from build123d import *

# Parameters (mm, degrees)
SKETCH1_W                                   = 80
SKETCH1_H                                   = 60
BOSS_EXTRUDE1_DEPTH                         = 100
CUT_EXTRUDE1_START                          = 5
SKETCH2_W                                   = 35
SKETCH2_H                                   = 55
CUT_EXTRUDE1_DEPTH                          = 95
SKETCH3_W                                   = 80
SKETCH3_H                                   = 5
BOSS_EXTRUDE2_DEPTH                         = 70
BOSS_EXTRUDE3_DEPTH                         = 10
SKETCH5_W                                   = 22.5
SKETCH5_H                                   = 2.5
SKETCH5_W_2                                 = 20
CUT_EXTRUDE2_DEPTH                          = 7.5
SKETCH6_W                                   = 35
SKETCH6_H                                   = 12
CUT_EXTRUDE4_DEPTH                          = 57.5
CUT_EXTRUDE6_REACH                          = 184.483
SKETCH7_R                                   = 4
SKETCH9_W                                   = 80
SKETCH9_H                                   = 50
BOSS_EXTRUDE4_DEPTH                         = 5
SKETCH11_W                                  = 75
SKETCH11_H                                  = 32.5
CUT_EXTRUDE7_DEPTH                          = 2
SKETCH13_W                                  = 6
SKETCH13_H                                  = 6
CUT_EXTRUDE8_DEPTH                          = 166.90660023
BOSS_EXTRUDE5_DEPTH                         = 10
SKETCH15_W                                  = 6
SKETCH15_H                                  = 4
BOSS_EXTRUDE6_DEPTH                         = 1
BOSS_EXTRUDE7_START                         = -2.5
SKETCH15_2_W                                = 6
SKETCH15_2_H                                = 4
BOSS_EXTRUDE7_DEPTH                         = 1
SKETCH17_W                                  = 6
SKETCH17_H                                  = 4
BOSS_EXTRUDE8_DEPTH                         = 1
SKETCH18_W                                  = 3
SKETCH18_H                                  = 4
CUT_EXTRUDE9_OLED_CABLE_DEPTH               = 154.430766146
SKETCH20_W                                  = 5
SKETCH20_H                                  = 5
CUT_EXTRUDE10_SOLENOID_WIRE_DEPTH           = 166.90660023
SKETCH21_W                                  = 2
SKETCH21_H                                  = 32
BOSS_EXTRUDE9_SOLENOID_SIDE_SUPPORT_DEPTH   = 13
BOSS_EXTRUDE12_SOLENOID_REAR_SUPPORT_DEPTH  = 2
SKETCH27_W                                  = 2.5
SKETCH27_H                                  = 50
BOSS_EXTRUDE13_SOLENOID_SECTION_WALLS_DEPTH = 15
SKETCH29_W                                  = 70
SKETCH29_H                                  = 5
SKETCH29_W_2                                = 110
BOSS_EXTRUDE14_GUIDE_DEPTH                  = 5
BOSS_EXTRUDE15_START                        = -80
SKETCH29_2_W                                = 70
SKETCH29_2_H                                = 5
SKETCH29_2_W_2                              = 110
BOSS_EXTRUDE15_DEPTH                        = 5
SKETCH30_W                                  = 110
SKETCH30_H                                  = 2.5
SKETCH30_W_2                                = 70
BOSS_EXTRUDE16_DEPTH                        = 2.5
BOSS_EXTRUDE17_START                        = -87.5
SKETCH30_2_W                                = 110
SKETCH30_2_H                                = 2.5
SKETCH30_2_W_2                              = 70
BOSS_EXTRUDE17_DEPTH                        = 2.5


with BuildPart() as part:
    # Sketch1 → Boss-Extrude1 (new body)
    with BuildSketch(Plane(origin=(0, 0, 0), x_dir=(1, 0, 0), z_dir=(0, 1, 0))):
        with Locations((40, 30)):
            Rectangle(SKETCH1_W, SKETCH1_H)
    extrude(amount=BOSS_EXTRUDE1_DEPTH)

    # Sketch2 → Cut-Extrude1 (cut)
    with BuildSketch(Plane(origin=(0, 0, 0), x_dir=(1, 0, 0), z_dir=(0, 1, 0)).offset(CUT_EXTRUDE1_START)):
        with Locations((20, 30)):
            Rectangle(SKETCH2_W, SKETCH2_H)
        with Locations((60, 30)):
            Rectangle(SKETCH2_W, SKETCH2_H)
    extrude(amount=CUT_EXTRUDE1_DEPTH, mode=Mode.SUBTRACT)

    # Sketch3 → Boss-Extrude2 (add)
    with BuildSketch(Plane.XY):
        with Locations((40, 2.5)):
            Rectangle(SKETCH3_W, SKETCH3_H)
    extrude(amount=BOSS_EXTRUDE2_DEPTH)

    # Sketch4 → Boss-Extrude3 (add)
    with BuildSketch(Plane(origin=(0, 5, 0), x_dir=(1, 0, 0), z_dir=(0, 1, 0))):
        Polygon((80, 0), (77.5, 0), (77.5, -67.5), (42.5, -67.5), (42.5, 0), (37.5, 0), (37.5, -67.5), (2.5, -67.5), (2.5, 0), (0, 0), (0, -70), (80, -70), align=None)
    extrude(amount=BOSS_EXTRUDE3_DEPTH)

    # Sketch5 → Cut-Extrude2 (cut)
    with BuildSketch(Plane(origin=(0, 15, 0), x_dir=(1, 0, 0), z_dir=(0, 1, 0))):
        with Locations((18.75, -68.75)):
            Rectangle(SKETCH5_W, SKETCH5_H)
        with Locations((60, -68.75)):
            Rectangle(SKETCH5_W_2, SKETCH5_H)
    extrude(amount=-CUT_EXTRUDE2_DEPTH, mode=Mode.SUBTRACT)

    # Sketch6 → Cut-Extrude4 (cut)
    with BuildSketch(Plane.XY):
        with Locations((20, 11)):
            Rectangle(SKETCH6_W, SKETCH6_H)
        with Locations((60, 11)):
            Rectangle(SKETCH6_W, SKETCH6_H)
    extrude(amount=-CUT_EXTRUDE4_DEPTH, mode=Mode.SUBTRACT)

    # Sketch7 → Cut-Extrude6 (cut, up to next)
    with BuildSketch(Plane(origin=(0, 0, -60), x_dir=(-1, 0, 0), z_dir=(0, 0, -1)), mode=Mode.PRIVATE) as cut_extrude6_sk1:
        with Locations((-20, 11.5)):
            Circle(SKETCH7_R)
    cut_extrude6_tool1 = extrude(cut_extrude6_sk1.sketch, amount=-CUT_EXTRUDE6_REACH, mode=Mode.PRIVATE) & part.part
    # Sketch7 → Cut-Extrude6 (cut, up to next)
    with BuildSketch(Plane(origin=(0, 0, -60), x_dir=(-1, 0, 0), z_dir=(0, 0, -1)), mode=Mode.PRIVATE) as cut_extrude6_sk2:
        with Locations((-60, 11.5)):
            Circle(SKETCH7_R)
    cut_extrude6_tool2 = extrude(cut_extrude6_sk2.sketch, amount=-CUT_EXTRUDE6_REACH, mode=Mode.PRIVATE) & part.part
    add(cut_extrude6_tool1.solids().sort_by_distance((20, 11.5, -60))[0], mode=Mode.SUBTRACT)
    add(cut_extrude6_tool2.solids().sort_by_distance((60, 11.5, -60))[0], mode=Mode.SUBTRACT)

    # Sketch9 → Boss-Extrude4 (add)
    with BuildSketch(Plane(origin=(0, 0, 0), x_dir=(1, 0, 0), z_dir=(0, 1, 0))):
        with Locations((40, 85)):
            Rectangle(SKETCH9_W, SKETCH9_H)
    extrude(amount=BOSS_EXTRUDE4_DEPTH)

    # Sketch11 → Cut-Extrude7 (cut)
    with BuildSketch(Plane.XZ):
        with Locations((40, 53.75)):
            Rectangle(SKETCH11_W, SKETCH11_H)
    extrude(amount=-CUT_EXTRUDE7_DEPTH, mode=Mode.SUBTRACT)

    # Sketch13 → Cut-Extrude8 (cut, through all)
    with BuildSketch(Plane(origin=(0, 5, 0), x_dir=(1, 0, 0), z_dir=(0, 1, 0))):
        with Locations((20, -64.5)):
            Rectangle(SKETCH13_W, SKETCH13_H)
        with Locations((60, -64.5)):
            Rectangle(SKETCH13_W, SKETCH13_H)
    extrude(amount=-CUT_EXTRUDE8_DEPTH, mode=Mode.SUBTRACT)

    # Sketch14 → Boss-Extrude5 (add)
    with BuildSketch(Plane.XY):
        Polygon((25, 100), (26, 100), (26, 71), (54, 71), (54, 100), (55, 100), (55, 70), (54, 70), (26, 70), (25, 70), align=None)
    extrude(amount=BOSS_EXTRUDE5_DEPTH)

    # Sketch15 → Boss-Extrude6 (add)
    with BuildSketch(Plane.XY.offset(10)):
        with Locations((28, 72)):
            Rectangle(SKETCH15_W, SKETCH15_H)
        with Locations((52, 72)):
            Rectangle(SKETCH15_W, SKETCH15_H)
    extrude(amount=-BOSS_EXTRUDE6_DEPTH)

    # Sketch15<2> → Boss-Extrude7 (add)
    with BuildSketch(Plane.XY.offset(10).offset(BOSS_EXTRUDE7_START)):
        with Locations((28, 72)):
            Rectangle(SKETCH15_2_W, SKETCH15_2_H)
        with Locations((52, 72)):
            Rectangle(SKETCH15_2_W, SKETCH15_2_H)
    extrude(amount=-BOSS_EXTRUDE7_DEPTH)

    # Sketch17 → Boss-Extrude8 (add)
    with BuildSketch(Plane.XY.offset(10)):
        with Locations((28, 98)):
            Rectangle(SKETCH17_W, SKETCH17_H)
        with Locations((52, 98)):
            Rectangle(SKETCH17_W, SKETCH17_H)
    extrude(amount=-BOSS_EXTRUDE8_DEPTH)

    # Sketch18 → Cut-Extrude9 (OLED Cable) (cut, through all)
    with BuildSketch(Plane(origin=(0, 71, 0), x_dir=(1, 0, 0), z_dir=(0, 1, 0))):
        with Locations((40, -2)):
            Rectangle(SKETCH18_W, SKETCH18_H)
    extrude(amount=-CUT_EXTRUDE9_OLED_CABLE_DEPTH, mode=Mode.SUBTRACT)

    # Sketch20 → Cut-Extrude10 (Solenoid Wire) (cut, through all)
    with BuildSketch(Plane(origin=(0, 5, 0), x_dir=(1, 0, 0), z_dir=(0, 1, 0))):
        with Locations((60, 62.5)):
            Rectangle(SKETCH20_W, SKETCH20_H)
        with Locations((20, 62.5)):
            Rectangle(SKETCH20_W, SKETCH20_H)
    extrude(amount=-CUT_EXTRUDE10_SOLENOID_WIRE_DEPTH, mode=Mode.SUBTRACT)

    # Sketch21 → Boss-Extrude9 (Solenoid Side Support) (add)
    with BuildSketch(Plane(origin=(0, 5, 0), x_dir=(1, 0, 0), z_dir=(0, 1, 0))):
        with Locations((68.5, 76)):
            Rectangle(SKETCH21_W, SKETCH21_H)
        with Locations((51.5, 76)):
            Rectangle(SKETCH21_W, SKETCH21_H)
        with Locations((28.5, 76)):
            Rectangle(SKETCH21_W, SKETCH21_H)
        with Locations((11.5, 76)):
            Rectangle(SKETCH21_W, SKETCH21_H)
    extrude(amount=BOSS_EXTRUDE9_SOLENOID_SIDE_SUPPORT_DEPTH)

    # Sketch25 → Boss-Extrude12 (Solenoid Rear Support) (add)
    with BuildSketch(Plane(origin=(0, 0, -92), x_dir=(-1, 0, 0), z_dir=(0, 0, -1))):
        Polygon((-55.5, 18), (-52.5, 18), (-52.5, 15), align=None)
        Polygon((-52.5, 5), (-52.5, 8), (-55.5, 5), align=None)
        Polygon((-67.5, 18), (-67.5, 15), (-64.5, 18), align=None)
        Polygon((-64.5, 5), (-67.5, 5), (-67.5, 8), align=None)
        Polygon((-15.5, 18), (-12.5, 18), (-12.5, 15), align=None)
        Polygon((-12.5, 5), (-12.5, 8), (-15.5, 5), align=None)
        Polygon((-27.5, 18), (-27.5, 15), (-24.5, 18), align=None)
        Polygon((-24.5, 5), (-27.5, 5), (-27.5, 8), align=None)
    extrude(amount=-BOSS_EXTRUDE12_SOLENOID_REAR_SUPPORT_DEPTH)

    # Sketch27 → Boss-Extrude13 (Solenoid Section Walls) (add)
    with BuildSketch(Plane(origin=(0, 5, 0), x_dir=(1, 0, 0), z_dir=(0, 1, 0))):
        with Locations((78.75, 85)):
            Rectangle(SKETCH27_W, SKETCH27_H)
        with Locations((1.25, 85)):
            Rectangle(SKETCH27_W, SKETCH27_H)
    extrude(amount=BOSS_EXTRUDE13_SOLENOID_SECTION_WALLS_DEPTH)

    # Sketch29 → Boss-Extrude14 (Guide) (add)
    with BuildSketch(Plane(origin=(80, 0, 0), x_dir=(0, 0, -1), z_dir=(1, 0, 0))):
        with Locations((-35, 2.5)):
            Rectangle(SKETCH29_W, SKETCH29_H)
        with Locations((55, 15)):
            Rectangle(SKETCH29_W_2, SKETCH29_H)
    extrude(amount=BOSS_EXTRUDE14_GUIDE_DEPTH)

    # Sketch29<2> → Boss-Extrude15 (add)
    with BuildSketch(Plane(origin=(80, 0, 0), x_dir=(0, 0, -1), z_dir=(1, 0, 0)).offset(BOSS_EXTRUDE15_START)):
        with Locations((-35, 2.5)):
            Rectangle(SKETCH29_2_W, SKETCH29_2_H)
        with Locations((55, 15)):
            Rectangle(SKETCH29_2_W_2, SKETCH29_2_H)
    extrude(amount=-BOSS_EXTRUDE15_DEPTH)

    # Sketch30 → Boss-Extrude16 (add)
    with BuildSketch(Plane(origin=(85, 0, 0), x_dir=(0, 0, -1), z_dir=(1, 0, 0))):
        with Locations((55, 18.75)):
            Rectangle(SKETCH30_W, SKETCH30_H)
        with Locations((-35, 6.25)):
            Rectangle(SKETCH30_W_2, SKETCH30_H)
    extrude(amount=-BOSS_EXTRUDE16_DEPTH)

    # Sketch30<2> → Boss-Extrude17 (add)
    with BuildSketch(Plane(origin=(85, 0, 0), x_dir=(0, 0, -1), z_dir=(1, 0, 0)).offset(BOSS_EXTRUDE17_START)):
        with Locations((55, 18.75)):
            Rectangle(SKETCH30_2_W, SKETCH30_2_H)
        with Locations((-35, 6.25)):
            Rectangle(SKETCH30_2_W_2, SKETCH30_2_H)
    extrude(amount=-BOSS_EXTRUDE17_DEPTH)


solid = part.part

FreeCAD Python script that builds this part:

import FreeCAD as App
import Part
import Sketcher

V = App.Vector


def add_polygon(sketch, points):
    """Adds a closed chain of lines whose ends are joined by coincident constraints."""
    first, n = sketch.GeometryCount, len(points)
    for a, b in zip(points, points[1:] + points[:1]):
        sketch.addGeometry(Part.LineSegment(App.Vector(*a, 0), App.Vector(*b, 0)), False)
    for i in range(n):
        sketch.addConstraint(Sketcher.Constraint("Coincident", first + i, 2, first + (i + 1) % n, 1))

doc = App.newDocument("Part")
body = doc.addObject("PartDesign::Body", "Body")

sketch1 = body.newObject("Sketcher::SketchObject", "Sketch")
sketch1.AttachmentSupport = (doc.getObject("XZ_Plane"), [""])
sketch1.MapMode = "FlatFace"
add_polygon(sketch1, [(0, -60), (0, 0), (80, 0), (80, -60)])
sketch1.addConstraint([
    Sketcher.Constraint("Vertical", 0),
    Sketcher.Constraint("Horizontal", 1),
    Sketcher.Constraint("Vertical", 2),
    Sketcher.Constraint("Horizontal", 3),
    Sketcher.Constraint("Coincident", 0, 2, -1, 1),
    Sketcher.Constraint("DistanceX", 1, 1, 1, 2, 80.0),
    Sketcher.Constraint("DistanceY", 0, 1, 0, 2, 60.0),
])
pad1 = body.newObject("PartDesign::Pad", "Pad")
pad1.Profile = sketch1
pad1.Length = 100
pad1.Reversed = True

sketch2 = body.newObject("Sketcher::SketchObject", "Sketch001")
sketch2.AttachmentSupport = (doc.getObject("XZ_Plane"), [""])
sketch2.MapMode = "FlatFace"
sketch2.AttachmentOffset = App.Placement(V(0, 0, -5), App.Rotation())
add_polygon(sketch2, [(2, -58), (2, -2), (38, -2), (38, -58)])
add_polygon(sketch2, [(42, -58), (42, -2), (78, -2), (78, -58)])
sketch2.addConstraint([
    Sketcher.Constraint("Vertical", 0),
    Sketcher.Constraint("Horizontal", 1),
    Sketcher.Constraint("Vertical", 2),
    Sketcher.Constraint("Horizontal", 3),
    Sketcher.Constraint("Vertical", 4),
    Sketcher.Constraint("Horizontal", 5),
    Sketcher.Constraint("Vertical", 6),
    Sketcher.Constraint("Horizontal", 7),
    Sketcher.Constraint("Horizontal", 1, 2, 4, 2),
    Sketcher.Constraint("Horizontal", 3, 2, 6, 2),
    Sketcher.Constraint("Equal", 3, 5),
    Sketcher.Constraint("DistanceX", 1, 1, 1, 2, 35.0),
    Sketcher.Constraint("DistanceY", 0, 1, 0, 2, 55.0),
    Sketcher.Constraint("DistanceX", 1, 2, 4, 2, 5.0),
    Sketcher.Constraint("DistanceX", -1, 1, 0, 2, 2.5),
    Sketcher.Constraint("DistanceY", 0, 2, -1, 1, 2.5),
])
pocket1 = body.newObject("PartDesign::Pocket", "Pocket")
pocket1.Profile = sketch2
pocket1.Length = 95

sketch3 = body.newObject("Sketcher::SketchObject", "Sketch002")
sketch3.AttachmentSupport = (doc.getObject("XY_Plane"), [""])
sketch3.MapMode = "FlatFace"
add_polygon(sketch3, [(0, 5), (0, 0), (80, 0), (80, 5)])
sketch3.addConstraint([
    Sketcher.Constraint("Vertical", 0),
    Sketcher.Constraint("Horizontal", 1),
    Sketcher.Constraint("Vertical", 2),
    Sketcher.Constraint("Horizontal", 3),
    Sketcher.Constraint("Coincident", 0, 2, -1, 1),
    Sketcher.Constraint("DistanceX", 1, 1, 1, 2, 80.0),
    Sketcher.Constraint("DistanceY", 0, 2, 0, 1, 5.0),
])
pad2 = body.newObject("PartDesign::Pad", "Pad001")
pad2.Profile = sketch3
pad2.Length = 70

sketch4 = body.newObject("Sketcher::SketchObject", "Sketch003")
sketch4.AttachmentSupport = (doc.getObject("XZ_Plane"), [""])
sketch4.MapMode = "FlatFace"
sketch4.AttachmentOffset = App.Placement(V(0, 0, -5), App.Rotation())
add_polygon(sketch4, [(80, 0), (77.5, 0), (77.5, 67.5), (42.5, 67.5), (42.5, 0), (37.5, 0), (37.5, 67.5), (2.5, 67.5), (2.5, 0), (0, 0), (0, 70), (80, 70)])
sketch4.addConstraint([
    Sketcher.Constraint("Horizontal", 0),
    Sketcher.Constraint("Vertical", 1),
    Sketcher.Constraint("Horizontal", 2),
    Sketcher.Constraint("Vertical", 3),
    Sketcher.Constraint("Horizontal", 4),
    Sketcher.Constraint("Vertical", 5),
    Sketcher.Constraint("Horizontal", 6),
    Sketcher.Constraint("Vertical", 7),
    Sketcher.Constraint("Horizontal", 8),
    Sketcher.Constraint("Vertical", 9),
    Sketcher.Constraint("Horizontal", 10),
    Sketcher.Constraint("Vertical", 11),
    Sketcher.Constraint("Coincident", 8, 2, -1, 1),
    Sketcher.Constraint("PointOnObject", 0, 2, -1),
    Sketcher.Constraint("PointOnObject", 3, 2, -1),
    Sketcher.Constraint("Horizontal", 2, 2, 5, 2),
    Sketcher.Constraint("Equal", 2, 6),
    Sketcher.Constraint("Equal", 0, 8),
    Sketcher.Constraint("DistanceX", 2, 2, 2, 1, 35.0),
    Sketcher.Constraint("DistanceX", 4, 2, 4, 1, 5.0),
    Sketcher.Constraint("DistanceX", 10, 1, 10, 2, 80.0),
    Sketcher.Constraint("DistanceY", 9, 1, 9, 2, 70.0),
    Sketcher.Constraint("DistanceY", 1, 1, 1, 2, 67.5),
])
pad3 = body.newObject("PartDesign::Pad", "Pad002")
pad3.Profile = sketch4
pad3.Length = 10
pad3.Reversed = True

sketch5 = body.newObject("Sketcher::SketchObject", "Sketch004")
sketch5.AttachmentSupport = (doc.getObject("XZ_Plane"), [""])
sketch5.MapMode = "FlatFace"
sketch5.AttachmentOffset = App.Placement(V(0, 0, -15), App.Rotation())
add_polygon(sketch5, [(7.5, 67.5), (7.5, 70), (30, 70), (30, 67.5)])
add_polygon(sketch5, [(50, 67.5), (50, 70), (70, 70), (70, 67.5)])
sketch5.addConstraint([
    Sketcher.Constraint("Vertical", 0),
    Sketcher.Constraint("Horizontal", 1),
    Sketcher.Constraint("Vertical", 2),
    Sketcher.Constraint("Horizontal", 3),
    Sketcher.Constraint("Vertical", 4),
    Sketcher.Constraint("Horizontal", 5),
    Sketcher.Constraint("Vertical", 6),
    Sketcher.Constraint("Horizontal", 7),
    Sketcher.Constraint("Horizontal", 1, 2, 4, 2),
    Sketcher.Constraint("Horizontal", 3, 2, 6, 2),
    Sketcher.Constraint("DistanceX", 5, 1, 5, 2, 20.0),
    Sketcher.Constraint("DistanceX", 1, 1, 1, 2, 22.5),
    Sketcher.Constraint("DistanceY", 0, 1, 0, 2, 2.5),
    Sketcher.Constraint("DistanceY", -1, 1, 0, 2, 70.0),
    Sketcher.Constraint("DistanceX", -1, 1, 1, 2, 30.0),
    Sketcher.Constraint("DistanceX", -1, 1, 4, 2, 50.0),
])
pocket2 = body.newObject("PartDesign::Pocket", "Pocket001")
pocket2.Profile = sketch5
pocket2.Length = 7.5
pocket2.Reversed = True

sketch6 = body.newObject("Sketcher::SketchObject", "Sketch005")
sketch6.AttachmentSupport = (doc.getObject("XY_Plane"), [""])
sketch6.MapMode = "FlatFace"
add_polygon(sketch6, [(2, 17), (2, 5), (38, 5), (38, 17)])
add_polygon(sketch6, [(42, 17), (42, 5), (78, 5), (78, 17)])
sketch6.addConstraint([
    Sketcher.Constraint("Vertical", 0),
    Sketcher.Constraint("Horizontal", 1),
    Sketcher.Constraint("Vertical", 2),
    Sketcher.Constraint("Horizontal", 3),
    Sketcher.Constraint("Vertical", 4),
    Sketcher.Constraint("Horizontal", 5),
    Sketcher.Constraint("Vertical", 6),
    Sketcher.Constraint("Horizontal", 7),
    Sketcher.Constraint("Horizontal", 1, 2, 4, 2),
    Sketcher.Constraint("Horizontal", 3, 2, 6, 2),
    Sketcher.Constraint("Equal", 3, 5),
    Sketcher.Constraint("DistanceX", 1, 1, 1, 2, 35.0),
    Sketcher.Constraint("DistanceY", 0, 2, 0, 1, 12.0),
    Sketcher.Constraint("DistanceY", -1, 1, 0, 2, 5.0),
    Sketcher.Constraint("DistanceX", 1, 2, 4, 2, 5.0),
    Sketcher.Constraint("DistanceX", -1, 1, 0, 2, 2.5),
])
pocket3 = body.newObject("PartDesign::Pocket", "Pocket002")
pocket3.Profile = sketch6
pocket3.Length = 57.5

sketch7 = body.newObject("Sketcher::SketchObject", "Sketch006")
sketch7.AttachmentSupport = (doc.getObject("XY_Plane"), [""])
sketch7.MapMode = "FlatFace"
sketch7.AttachmentOffset = App.Placement(V(0, 0, -60), App.Rotation())
sketch7.addGeometry(Part.Circle(V(20, 11.5, 0), V(0, 0, 1), 4), False)
sketch7.addConstraint([
    Sketcher.Constraint("Diameter", 0, 8.0),
    Sketcher.Constraint("DistanceX", -1, 1, 0, 3, 20.0),
    Sketcher.Constraint("DistanceY", -1, 1, 0, 3, 11.5),
])
pocket4 = body.newObject("PartDesign::Pocket", "Pocket003")
pocket4.Profile = sketch7
pocket4.Type = "UpToFirst"
pocket4.Reversed = True

sketch8 = body.newObject("Sketcher::SketchObject", "Sketch007")
sketch8.AttachmentSupport = (doc.getObject("XY_Plane"), [""])
sketch8.MapMode = "FlatFace"
sketch8.AttachmentOffset = App.Placement(V(0, 0, -60), App.Rotation())
sketch8.addGeometry(Part.Circle(V(60, 11.5, 0), V(0, 0, 1), 4), False)
sketch8.addConstraint([
    Sketcher.Constraint("Diameter", 0, 8.0),
    Sketcher.Constraint("DistanceX", -1, 1, 0, 3, 60.0),
    Sketcher.Constraint("DistanceY", -1, 1, 0, 3, 11.5),
])
pocket5 = body.newObject("PartDesign::Pocket", "Pocket004")
pocket5.Profile = sketch8
pocket5.Type = "UpToFirst"
pocket5.Reversed = True

sketch9 = body.newObject("Sketcher::SketchObject", "Sketch008")
sketch9.AttachmentSupport = (doc.getObject("XZ_Plane"), [""])
sketch9.MapMode = "FlatFace"
add_polygon(sketch9, [(0, -110), (0, -60), (80, -60), (80, -110)])
sketch9.addConstraint([
    Sketcher.Constraint("Vertical", 0),
    Sketcher.Constraint("Horizontal", 1),
    Sketcher.Constraint("Vertical", 2),
    Sketcher.Constraint("Horizontal", 3),
    Sketcher.Constraint("PointOnObject", 0, 2, -2),
    Sketcher.Constraint("DistanceX", 1, 1, 1, 2, 80.0),
    Sketcher.Constraint("DistanceY", 0, 1, 0, 2, 50.0),
    Sketcher.Constraint("DistanceY", 0, 2, -1, 1, 60.0),
])
pad4 = body.newObject("PartDesign::Pad", "Pad003")
pad4.Profile = sketch9
pad4.Length = 5
pad4.Reversed = True

sketch10 = body.newObject("Sketcher::SketchObject", "Sketch009")
sketch10.AttachmentSupport = (doc.getObject("XZ_Plane"), [""])
sketch10.MapMode = "FlatFace"
add_polygon(sketch10, [(2, 70), (2, 38), (78, 38), (78, 70)])
sketch10.addConstraint([
    Sketcher.Constraint("Vertical", 0),
    Sketcher.Constraint("Horizontal", 1),
    Sketcher.Constraint("Vertical", 2),
    Sketcher.Constraint("Horizontal", 3),
    Sketcher.Constraint("DistanceX", 1, 1, 1, 2, 75.0),
    Sketcher.Constraint("DistanceY", 0, 2, 0, 1, 32.5),
    Sketcher.Constraint("DistanceY", -1, 1, 2, 2, 70.0),
    Sketcher.Constraint("DistanceX", -1, 1, 0, 2, 2.5),
])
pocket6 = body.newObject("PartDesign::Pocket", "Pocket005")
pocket6.Profile = sketch10
pocket6.Length = 2

sketch11 = body.newObject("Sketcher::SketchObject", "Sketch010")
sketch11.AttachmentSupport = (doc.getObject("XZ_Plane"), [""])
sketch11.MapMode = "FlatFace"
sketch11.AttachmentOffset = App.Placement(V(0, 0, -5), App.Rotation())
add_polygon(sketch11, [(17, 62), (17, 68), (23, 68), (23, 62)])
add_polygon(sketch11, [(57, 62), (57, 68), (63, 68), (63, 62)])
sketch11.addConstraint([
    Sketcher.Constraint("Vertical", 0),
    Sketcher.Constraint("Horizontal", 1),
    Sketcher.Constraint("Vertical", 2),
    Sketcher.Constraint("Horizontal", 3),
    Sketcher.Constraint("Vertical", 4),
    Sketcher.Constraint("Horizontal", 5),
    Sketcher.Constraint("Vertical", 6),
    Sketcher.Constraint("Horizontal", 7),
    Sketcher.Constraint("Horizontal", 1, 2, 4, 2),
    Sketcher.Constraint("Horizontal", 3, 2, 6, 2),
    Sketcher.Constraint("Equal", 3, 5),
    Sketcher.Constraint("Equal", 7, 0),
    Sketcher.Constraint("DistanceX", 1, 1, 1, 2, 6.0),
    Sketcher.Constraint("DistanceX", -1, 1, 0, 2, 17.0),
    Sketcher.Constraint("DistanceX", -1, 1, 4, 2, 57.0),
    Sketcher.Constraint("DistanceY", -1, 1, 0, 2, 67.5),
])
pocket7 = body.newObject("PartDesign::Pocket", "Pocket006")
pocket7.Profile = sketch11
pocket7.Type = "ThroughAll"
pocket7.Reversed = True

sketch12 = body.newObject("Sketcher::SketchObject", "Sketch011")
sketch12.AttachmentSupport = (doc.getObject("XY_Plane"), [""])
sketch12.MapMode = "FlatFace"
add_polygon(sketch12, [(26, 100), (25, 100), (25, 70), (55, 70), (55, 100), (54, 100), (54, 71), (26, 71)])
sketch12.addConstraint([
    Sketcher.Constraint("Horizontal", 0),
    Sketcher.Constraint("Vertical", 1),
    Sketcher.Constraint("Horizontal", 2),
    Sketcher.Constraint("Vertical", 3),
    Sketcher.Constraint("Horizontal", 4),
    Sketcher.Constraint("Vertical", 5),
    Sketcher.Constraint("Horizontal", 6),
    Sketcher.Constraint("Vertical", 7),
    Sketcher.Constraint("Horizontal", 0, 2, 3, 2),
    Sketcher.Constraint("Equal", 0, 4),
    Sketcher.Constraint("Equal", 2, 1),
    Sketcher.Constraint("DistanceX", 0, 2, 0, 1, 1.0),
    Sketcher.Constraint("DistanceX", 2, 1, 2, 2, 30.0),
    Sketcher.Constraint("DistanceY", 5, 2, 5, 1, 29.0),
    Sketcher.Constraint("DistanceX", -1, 1, 0, 2, 25.0),
    Sketcher.Constraint("DistanceY", -1, 1, 0, 2, 100.0),
])
pad5 = body.newObject("PartDesign::Pad", "Pad004")
pad5.Profile = sketch12
pad5.Length = 10

sketch13 = body.newObject("Sketcher::SketchObject", "Sketch012")
sketch13.AttachmentSupport = (doc.getObject("XY_Plane"), [""])
sketch13.MapMode = "FlatFace"
sketch13.AttachmentOffset = App.Placement(V(0, 0, 10), App.Rotation())
add_polygon(sketch13, [(25, 74), (25, 70), (31, 70), (31, 74)])
add_polygon(sketch13, [(49, 74), (49, 70), (55, 70), (55, 74)])
sketch13.addConstraint([
    Sketcher.Constraint("Vertical", 0),
    Sketcher.Constraint("Horizontal", 1),
    Sketcher.Constraint("Vertical", 2),
    Sketcher.Constraint("Horizontal", 3),
    Sketcher.Constraint("Vertical", 4),
    Sketcher.Constraint("Horizontal", 5),
    Sketcher.Constraint("Vertical", 6),
    Sketcher.Constraint("Horizontal", 7),
    Sketcher.Constraint("Horizontal", 1, 2, 4, 2),
    Sketcher.Constraint("Horizontal", 3, 2, 6, 2),
    Sketcher.Constraint("Equal", 3, 5),
    Sketcher.Constraint("DistanceX", 1, 1, 1, 2, 6.0),
    Sketcher.Constraint("DistanceY", 0, 2, 0, 1, 4.0),
    Sketcher.Constraint("DistanceX", -1, 1, 0, 2, 25.0),
    Sketcher.Constraint("DistanceY", -1, 1, 0, 2, 70.0),
    Sketcher.Constraint("DistanceX", -1, 1, 4, 2, 49.0),
])
pad6 = body.newObject("PartDesign::Pad", "Pad005")
pad6.Profile = sketch13
pad6.Length = 1
pad6.Reversed = True

sketch14 = body.newObject("Sketcher::SketchObject", "Sketch013")
sketch14.AttachmentSupport = (doc.getObject("XY_Plane"), [""])
sketch14.MapMode = "FlatFace"
sketch14.AttachmentOffset = App.Placement(V(0, 0, 7.5), App.Rotation())
add_polygon(sketch14, [(25, 74), (25, 70), (31, 70), (31, 74)])
add_polygon(sketch14, [(49, 74), (49, 70), (55, 70), (55, 74)])
sketch14.addConstraint([
    Sketcher.Constraint("Vertical", 0),
    Sketcher.Constraint("Horizontal", 1),
    Sketcher.Constraint("Vertical", 2),
    Sketcher.Constraint("Horizontal", 3),
    Sketcher.Constraint("Vertical", 4),
    Sketcher.Constraint("Horizontal", 5),
    Sketcher.Constraint("Vertical", 6),
    Sketcher.Constraint("Horizontal", 7),
    Sketcher.Constraint("Horizontal", 1, 2, 4, 2),
    Sketcher.Constraint("Horizontal", 3, 2, 6, 2),
    Sketcher.Constraint("Equal", 3, 5),
    Sketcher.Constraint("DistanceX", 1, 1, 1, 2, 6.0),
    Sketcher.Constraint("DistanceY", 0, 2, 0, 1, 4.0),
    Sketcher.Constraint("DistanceX", -1, 1, 0, 2, 25.0),
    Sketcher.Constraint("DistanceY", -1, 1, 0, 2, 70.0),
    Sketcher.Constraint("DistanceX", -1, 1, 4, 2, 49.0),
])
pad7 = body.newObject("PartDesign::Pad", "Pad006")
pad7.Profile = sketch14
pad7.Length = 1
pad7.Reversed = True

sketch15 = body.newObject("Sketcher::SketchObject", "Sketch014")
sketch15.AttachmentSupport = (doc.getObject("XY_Plane"), [""])
sketch15.MapMode = "FlatFace"
sketch15.AttachmentOffset = App.Placement(V(0, 0, 10), App.Rotation())
add_polygon(sketch15, [(25, 100), (25, 96), (31, 96), (31, 100)])
add_polygon(sketch15, [(49, 100), (49, 96), (55, 96), (55, 100)])
sketch15.addConstraint([
    Sketcher.Constraint("Vertical", 0),
    Sketcher.Constraint("Horizontal", 1),
    Sketcher.Constraint("Vertical", 2),
    Sketcher.Constraint("Horizontal", 3),
    Sketcher.Constraint("Vertical", 4),
    Sketcher.Constraint("Horizontal", 5),
    Sketcher.Constraint("Vertical", 6),
    Sketcher.Constraint("Horizontal", 7),
    Sketcher.Constraint("Horizontal", 1, 2, 4, 2),
    Sketcher.Constraint("Horizontal", 3, 2, 6, 2),
    Sketcher.Constraint("Equal", 3, 5),
    Sketcher.Constraint("DistanceX", 1, 1, 1, 2, 6.0),
    Sketcher.Constraint("DistanceY", 0, 2, 0, 1, 4.0),
    Sketcher.Constraint("DistanceX", -1, 1, 0, 2, 25.0),
    Sketcher.Constraint("DistanceY", -1, 1, 0, 2, 96.0),
    Sketcher.Constraint("DistanceX", -1, 1, 4, 2, 49.0),
])
pad8 = body.newObject("PartDesign::Pad", "Pad007")
pad8.Profile = sketch15
pad8.Length = 1
pad8.Reversed = True

sketch16 = body.newObject("Sketcher::SketchObject", "Sketch015")
sketch16.AttachmentSupport = (doc.getObject("XZ_Plane"), [""])
sketch16.MapMode = "FlatFace"
sketch16.AttachmentOffset = App.Placement(V(0, 0, -71), App.Rotation())
add_polygon(sketch16, [(38.5, 0), (38.5, 4), (41.5, 4), (41.5, 0)])
sketch16.addConstraint([
    Sketcher.Constraint("Vertical", 0),
    Sketcher.Constraint("Horizontal", 1),
    Sketcher.Constraint("Vertical", 2),
    Sketcher.Constraint("Horizontal", 3),
    Sketcher.Constraint("PointOnObject", 2, 2, -1),
    Sketcher.Constraint("DistanceX", 1, 1, 1, 2, 3.0),
    Sketcher.Constraint("DistanceY", 0, 1, 0, 2, 4.0),
    Sketcher.Constraint("DistanceX", -1, 1, 0, 2, 38.5),
])
pocket8 = body.newObject("PartDesign::Pocket", "Pocket007")
pocket8.Profile = sketch16
pocket8.Type = "ThroughAll"
pocket8.Reversed = True

sketch17 = body.newObject("Sketcher::SketchObject", "Sketch016")
sketch17.AttachmentSupport = (doc.getObject("XZ_Plane"), [""])
sketch17.MapMode = "FlatFace"
sketch17.AttachmentOffset = App.Placement(V(0, 0, -5), App.Rotation())
add_polygon(sketch17, [(58, -65), (58, -60), (62, -60), (62, -65)])
add_polygon(sketch17, [(18, -65), (18, -60), (22, -60), (22, -65)])
sketch17.addConstraint([
    Sketcher.Constraint("Vertical", 0),
    Sketcher.Constraint("Horizontal", 1),
    Sketcher.Constraint("Vertical", 2),
    Sketcher.Constraint("Horizontal", 3),
    Sketcher.Constraint("Vertical", 4),
    Sketcher.Constraint("Horizontal", 5),
    Sketcher.Constraint("Vertical", 6),
    Sketcher.Constraint("Horizontal", 7),
    Sketcher.Constraint("Horizontal", 1, 2, 4, 2),
    Sketcher.Constraint("Horizontal", 3, 2, 6, 2),
    Sketcher.Constraint("Equal", 3, 5),
    Sketcher.Constraint("Equal", 7, 0),
    Sketcher.Constraint("DistanceX", 1, 1, 1, 2, 5.0),
    Sketcher.Constraint("DistanceY", 0, 2, -1, 1, 60.0),
    Sketcher.Constraint("DistanceX", 4, 2, 0, 2, 40.0),
    Sketcher.Constraint("DistanceX", -1, 1, 0, 2, 57.5),
])
pocket9 = body.newObject("PartDesign::Pocket", "Pocket008")
pocket9.Profile = sketch17
pocket9.Type = "ThroughAll"
pocket9.Reversed = True

sketch18 = body.newObject("Sketcher::SketchObject", "Sketch017")
sketch18.AttachmentSupport = (doc.getObject("XZ_Plane"), [""])
sketch18.MapMode = "FlatFace"
sketch18.AttachmentOffset = App.Placement(V(0, 0, -5), App.Rotation())
add_polygon(sketch18, [(67.5, -92), (67.5, -60), (69.5, -60), (69.5, -92)])
add_polygon(sketch18, [(50.5, -92), (50.5, -60), (52.5, -60), (52.5, -92)])
add_polygon(sketch18, [(27.5, -92), (27.5, -60), (29.5, -60), (29.5, -92)])
add_polygon(sketch18, [(10.5, -92), (10.5, -60), (12.5, -60), (12.5, -92)])
sketch18.addConstraint([
    Sketcher.Constraint("Vertical", 0),
    Sketcher.Constraint("Horizontal", 1),
    Sketcher.Constraint("Vertical", 2),
    Sketcher.Constraint("Horizontal", 3),
    Sketcher.Constraint("Vertical", 4),
    Sketcher.Constraint("Horizontal", 5),
    Sketcher.Constraint("Vertical", 6),
    Sketcher.Constraint("Horizontal", 7),
    Sketcher.Constraint("Vertical", 8),
    Sketcher.Constraint("Horizontal", 9),
    Sketcher.Constraint("Vertical", 10),
    Sketcher.Constraint("Horizontal", 11),
    Sketcher.Constraint("Vertical", 12),
    Sketcher.Constraint("Horizontal", 13),
    Sketcher.Constraint("Vertical", 14),
    Sketcher.Constraint("Horizontal", 15),
    Sketcher.Constraint("Horizontal", 1, 2, 4, 2),
    Sketcher.Constraint("Horizontal", 3, 2, 6, 2),
    Sketcher.Constraint("Horizontal", 5, 2, 8, 2),
    Sketcher.Constraint("Horizontal", 7, 2, 10, 2),
    Sketcher.Constraint("Horizontal", 9, 2, 12, 2),
    Sketcher.Constraint("Horizontal", 11, 2, 14, 2),
    Sketcher.Constraint("Equal", 3, 5),
    Sketcher.Constraint("Equal", 7, 9),
    Sketcher.Constraint("Equal", 11, 13),
    Sketcher.Constraint("DistanceX", 1, 1, 1, 2, 2.0),
    Sketcher.Constraint("DistanceY", 0, 1, 0, 2, 32.0),
    Sketcher.Constraint("DistanceY", 0, 2, -1, 1, 60.0),
    Sketcher.Constraint("DistanceX", 4, 2, 0, 2, 17.0),
    Sketcher.Constraint("DistanceX", 8, 2, 4, 2, 23.0),
    Sketcher.Constraint("DistanceX", 12, 2, 8, 2, 17.0),
    Sketcher.Constraint("DistanceX", -1, 1, 0, 2, 67.5),
])
pad9 = body.newObject("PartDesign::Pad", "Pad008")
pad9.Profile = sketch18
pad9.Length = 13
pad9.Reversed = True

sketch19 = body.newObject("Sketcher::SketchObject", "Sketch018")
sketch19.AttachmentSupport = (doc.getObject("XY_Plane"), [""])
sketch19.MapMode = "FlatFace"
sketch19.AttachmentOffset = App.Placement(V(0, 0, -92), App.Rotation())
add_polygon(sketch19, [(52.5, 18), (55.5, 18), (52.5, 15)])
add_polygon(sketch19, [(52.5, 5), (52.5, 8), (55.5, 5)])
add_polygon(sketch19, [(67.5, 18), (67.5, 15), (64.5, 18)])
add_polygon(sketch19, [(67.5, 5), (64.5, 5), (67.5, 8)])
add_polygon(sketch19, [(12.5, 18), (15.5, 18), (12.5, 15)])
add_polygon(sketch19, [(12.5, 5), (12.5, 8), (15.5, 5)])
add_polygon(sketch19, [(27.5, 18), (27.5, 15), (24.5, 18)])
add_polygon(sketch19, [(27.5, 5), (24.5, 5), (27.5, 8)])
sketch19.addConstraint([
    Sketcher.Constraint("Horizontal", 0),
    Sketcher.Constraint("Vertical", 2),
    Sketcher.Constraint("Vertical", 3),
    Sketcher.Constraint("Horizontal", 5),
    Sketcher.Constraint("Vertical", 6),
    Sketcher.Constraint("Horizontal", 8),
    Sketcher.Constraint("Horizontal", 9),
    Sketcher.Constraint("Vertical", 11),
    Sketcher.Constraint("Horizontal", 12),
    Sketcher.Constraint("Vertical", 14),
    Sketcher.Constraint("Vertical", 15),
    Sketcher.Constraint("Horizontal", 17),
    Sketcher.Constraint("Vertical", 18),
    Sketcher.Constraint("Horizontal", 20),
    Sketcher.Constraint("Horizontal", 21),
    Sketcher.Constraint("Vertical", 23),
    Sketcher.Constraint("Perpendicular", 1, 4),
    Sketcher.Constraint("Parallel", 4, 7),
    Sketcher.Constraint("Perpendicular", 7, 10),
    Sketcher.Constraint("Parallel", 10, 13),
    Sketcher.Constraint("Perpendicular", 13, 16),
    Sketcher.Constraint("Parallel", 16, 19),
    Sketcher.Constraint("Perpendicular", 19, 22),
    Sketcher.Constraint("Horizontal", 1, 2, 6, 2),
    Sketcher.Constraint("Horizontal", 2, 2, 7, 2),
    Sketcher.Constraint("Horizontal", 5, 2, 9, 2),
    Sketcher.Constraint("Horizontal", 3, 2, 10, 2),
    Sketcher.Constraint("Horizontal", 8, 2, 12, 2),
    Sketcher.Constraint("Horizontal", 6, 2, 13, 2),
    Sketcher.Constraint("Horizontal", 10, 2, 15, 2),
    Sketcher.Constraint("Horizontal", 11, 2, 16, 2),
    Sketcher.Constraint("Horizontal", 13, 2, 18, 2),
    Sketcher.Constraint("Horizontal", 14, 2, 19, 2),
    Sketcher.Constraint("Horizontal", 17, 2, 21, 2),
    Sketcher.Constraint("Horizontal", 15, 2, 22, 2),
    Sketcher.Constraint("Vertical", 2, 2, 3, 2),
    Sketcher.Constraint("Vertical", 0, 2, 4, 2),
    Sketcher.Constraint("Vertical", 7, 2, 9, 2),
    Sketcher.Constraint("Vertical", 8, 2, 10, 2),
    Sketcher.Constraint("Vertical", 14, 2, 15, 2),
    Sketcher.Constraint("Vertical", 19, 2, 21, 2),
    Sketcher.Constraint("DistanceX", 0, 1, 0, 2, 3.0),
    Sketcher.Constraint("DistanceY", -1, 1, 0, 2, 18.0),
    Sketcher.Constraint("DistanceY", -1, 1, 3, 2, 8.0),
    Sketcher.Constraint("DistanceX", 0, 2, 6, 2, 12.0),
    Sketcher.Constraint("DistanceX", 12, 2, 2, 2, 37.0),
    Sketcher.Constraint("DistanceX", 12, 2, 18, 2, 12.0),
    Sketcher.Constraint("DistanceX", -1, 1, 0, 2, 55.5),
])
pad10 = body.newObject("PartDesign::Pad", "Pad009")
pad10.Profile = sketch19
pad10.Length = 2

sketch20 = body.newObject("Sketcher::SketchObject", "Sketch019")
sketch20.AttachmentSupport = (doc.getObject("XZ_Plane"), [""])
sketch20.MapMode = "FlatFace"
sketch20.AttachmentOffset = App.Placement(V(0, 0, -5), App.Rotation())
add_polygon(sketch20, [(77.5, -110), (77.5, -60), (80, -60), (80, -110)])
add_polygon(sketch20, [(0, -110), (0, -60), (2.5, -60), (2.5, -110)])
sketch20.addConstraint([
    Sketcher.Constraint("Vertical", 0),
    Sketcher.Constraint("Horizontal", 1),
    Sketcher.Constraint("Vertical", 2),
    Sketcher.Constraint("Horizontal", 3),
    Sketcher.Constraint("Vertical", 4),
    Sketcher.Constraint("Horizontal", 5),
    Sketcher.Constraint("Vertical", 6),
    Sketcher.Constraint("Horizontal", 7),
    Sketcher.Constraint("PointOnObject", 4, 2, -2),
    Sketcher.Constraint("Horizontal", 1, 2, 4, 2),
    Sketcher.Constraint("Horizontal", 3, 2, 6, 2),
    Sketcher.Constraint("Equal", 3, 5),
    Sketcher.Constraint("DistanceY", 0, 1, 0, 2, 50.0),
    Sketcher.Constraint("DistanceX", 1, 1, 1, 2, 2.5),
    Sketcher.Constraint("DistanceY", 0, 2, -1, 1, 60.0),
    Sketcher.Constraint("DistanceX", -1, 1, 1, 2, 80.0),
])
pad11 = body.newObject("PartDesign::Pad", "Pad010")
pad11.Profile = sketch20
pad11.Length = 15
pad11.Reversed = True

sketch21 = body.newObject("Sketcher::SketchObject", "Sketch020")
sketch21.AttachmentSupport = (doc.getObject("YZ_Plane"), [""])
sketch21.MapMode = "FlatFace"
sketch21.AttachmentOffset = App.Placement(V(0, 0, 80), App.Rotation())
add_polygon(sketch21, [(5, 70), (0, 70), (0, 0), (5, 0)])
add_polygon(sketch21, [(18, 0), (12, 0), (12, -110), (18, -110)])
sketch21.addConstraint([
    Sketcher.Constraint("Horizontal", 0),
    Sketcher.Constraint("Vertical", 1),
    Sketcher.Constraint("Horizontal", 2),
    Sketcher.Constraint("Vertical", 3),
    Sketcher.Constraint("Horizontal", 4),
    Sketcher.Constraint("Vertical", 5),
    Sketcher.Constraint("Horizontal", 6),
    Sketcher.Constraint("Vertical", 7),
    Sketcher.Constraint("Coincident", 1, 2, -1, 1),
    Sketcher.Constraint("PointOnObject", 4, 2, -1),
    Sketcher.Constraint("Equal", 2, 4),
    Sketcher.Constraint("DistanceX", 0, 2, 0, 1, 5.0),
    Sketcher.Constraint("DistanceY", 1, 2, 1, 1, 70.0),
    Sketcher.Constraint("DistanceY", 5, 2, 5, 1, 110.0),
    Sketcher.Constraint("DistanceX", -1, 1, 4, 2, 12.5),
])
pad12 = body.newObject("PartDesign::Pad", "Pad011")
pad12.Profile = sketch21
pad12.Length = 5

sketch22 = body.newObject("Sketcher::SketchObject", "Sketch021")
sketch22.AttachmentSupport = (doc.getObject("YZ_Plane"), [""])
sketch22.MapMode = "FlatFace"
add_polygon(sketch22, [(5, 70), (0, 70), (0, 0), (5, 0)])
add_polygon(sketch22, [(18, 0), (12, 0), (12, -110), (18, -110)])
sketch22.addConstraint([
    Sketcher.Constraint("Horizontal", 0),
    Sketcher.Constraint("Vertical", 1),
    Sketcher.Constraint("Horizontal", 2),
    Sketcher.Constraint("Vertical", 3),
    Sketcher.Constraint("Horizontal", 4),
    Sketcher.Constraint("Vertical", 5),
    Sketcher.Constraint("Horizontal", 6),
    Sketcher.Constraint("Vertical", 7),
    Sketcher.Constraint("Coincident", 1, 2, -1, 1),
    Sketcher.Constraint("PointOnObject", 4, 2, -1),
    Sketcher.Constraint("Equal", 2, 4),
    Sketcher.Constraint("DistanceX", 0, 2, 0, 1, 5.0),
    Sketcher.Constraint("DistanceY", 1, 2, 1, 1, 70.0),
    Sketcher.Constraint("DistanceY", 5, 2, 5, 1, 110.0),
    Sketcher.Constraint("DistanceX", -1, 1, 4, 2, 12.5),
])
pad13 = body.newObject("PartDesign::Pad", "Pad012")
pad13.Profile = sketch22
pad13.Length = 5
pad13.Reversed = True

sketch23 = body.newObject("Sketcher::SketchObject", "Sketch022")
sketch23.AttachmentSupport = (doc.getObject("YZ_Plane"), [""])
sketch23.MapMode = "FlatFace"
sketch23.AttachmentOffset = App.Placement(V(0, 0, 85), App.Rotation())
add_polygon(sketch23, [(20, 0), (17.5, 0), (17.5, -110), (20, -110)])
add_polygon(sketch23, [(7.5, 70), (5, 70), (5, 0), (7.5, 0)])
sketch23.addConstraint([
    Sketcher.Constraint("Horizontal", 0),
    Sketcher.Constraint("Vertical", 1),
    Sketcher.Constraint("Horizontal", 2),
    Sketcher.Constraint("Vertical", 3),
    Sketcher.Constraint("Horizontal", 4),
    Sketcher.Constraint("Vertical", 5),
    Sketcher.Constraint("Horizontal", 6),
    Sketcher.Constraint("Vertical", 7),
    Sketcher.Constraint("PointOnObject", 0, 2, -1),
    Sketcher.Constraint("PointOnObject", 5, 2, -1),
    Sketcher.Constraint("Equal", 2, 4),
    Sketcher.Constraint("DistanceY", 1, 2, 1, 1, 110.0),
    Sketcher.Constraint("DistanceY", 5, 2, 5, 1, 70.0),
    Sketcher.Constraint("DistanceX", 0, 2, 0, 1, 2.5),
    Sketcher.Constraint("DistanceX", -1, 1, 2, 2, 20.0),
    Sketcher.Constraint("DistanceX", -1, 1, 4, 2, 5.0),
])
pad14 = body.newObject("PartDesign::Pad", "Pad013")
pad14.Profile = sketch23
pad14.Length = 2.5
pad14.Reversed = True

sketch24 = body.newObject("Sketcher::SketchObject", "Sketch023")
sketch24.AttachmentSupport = (doc.getObject("YZ_Plane"), [""])
sketch24.MapMode = "FlatFace"
sketch24.AttachmentOffset = App.Placement(V(0, 0, -2.5), App.Rotation())
add_polygon(sketch24, [(20, 0), (17.5, 0), (17.5, -110), (20, -110)])
add_polygon(sketch24, [(7.5, 70), (5, 70), (5, 0), (7.5, 0)])
sketch24.addConstraint([
    Sketcher.Constraint("Horizontal", 0),
    Sketcher.Constraint("Vertical", 1),
    Sketcher.Constraint("Horizontal", 2),
    Sketcher.Constraint("Vertical", 3),
    Sketcher.Constraint("Horizontal", 4),
    Sketcher.Constraint("Vertical", 5),
    Sketcher.Constraint("Horizontal", 6),
    Sketcher.Constraint("Vertical", 7),
    Sketcher.Constraint("PointOnObject", 0, 2, -1),
    Sketcher.Constraint("PointOnObject", 5, 2, -1),
    Sketcher.Constraint("Equal", 2, 4),
    Sketcher.Constraint("DistanceY", 1, 2, 1, 1, 110.0),
    Sketcher.Constraint("DistanceY", 5, 2, 5, 1, 70.0),
    Sketcher.Constraint("DistanceX", 0, 2, 0, 1, 2.5),
    Sketcher.Constraint("DistanceX", -1, 1, 2, 2, 20.0),
    Sketcher.Constraint("DistanceX", -1, 1, 4, 2, 5.0),
])
pad15 = body.newObject("PartDesign::Pad", "Pad014")
pad15.Profile = sketch24
pad15.Length = 2.5
pad15.Reversed = True

doc.recompute()
